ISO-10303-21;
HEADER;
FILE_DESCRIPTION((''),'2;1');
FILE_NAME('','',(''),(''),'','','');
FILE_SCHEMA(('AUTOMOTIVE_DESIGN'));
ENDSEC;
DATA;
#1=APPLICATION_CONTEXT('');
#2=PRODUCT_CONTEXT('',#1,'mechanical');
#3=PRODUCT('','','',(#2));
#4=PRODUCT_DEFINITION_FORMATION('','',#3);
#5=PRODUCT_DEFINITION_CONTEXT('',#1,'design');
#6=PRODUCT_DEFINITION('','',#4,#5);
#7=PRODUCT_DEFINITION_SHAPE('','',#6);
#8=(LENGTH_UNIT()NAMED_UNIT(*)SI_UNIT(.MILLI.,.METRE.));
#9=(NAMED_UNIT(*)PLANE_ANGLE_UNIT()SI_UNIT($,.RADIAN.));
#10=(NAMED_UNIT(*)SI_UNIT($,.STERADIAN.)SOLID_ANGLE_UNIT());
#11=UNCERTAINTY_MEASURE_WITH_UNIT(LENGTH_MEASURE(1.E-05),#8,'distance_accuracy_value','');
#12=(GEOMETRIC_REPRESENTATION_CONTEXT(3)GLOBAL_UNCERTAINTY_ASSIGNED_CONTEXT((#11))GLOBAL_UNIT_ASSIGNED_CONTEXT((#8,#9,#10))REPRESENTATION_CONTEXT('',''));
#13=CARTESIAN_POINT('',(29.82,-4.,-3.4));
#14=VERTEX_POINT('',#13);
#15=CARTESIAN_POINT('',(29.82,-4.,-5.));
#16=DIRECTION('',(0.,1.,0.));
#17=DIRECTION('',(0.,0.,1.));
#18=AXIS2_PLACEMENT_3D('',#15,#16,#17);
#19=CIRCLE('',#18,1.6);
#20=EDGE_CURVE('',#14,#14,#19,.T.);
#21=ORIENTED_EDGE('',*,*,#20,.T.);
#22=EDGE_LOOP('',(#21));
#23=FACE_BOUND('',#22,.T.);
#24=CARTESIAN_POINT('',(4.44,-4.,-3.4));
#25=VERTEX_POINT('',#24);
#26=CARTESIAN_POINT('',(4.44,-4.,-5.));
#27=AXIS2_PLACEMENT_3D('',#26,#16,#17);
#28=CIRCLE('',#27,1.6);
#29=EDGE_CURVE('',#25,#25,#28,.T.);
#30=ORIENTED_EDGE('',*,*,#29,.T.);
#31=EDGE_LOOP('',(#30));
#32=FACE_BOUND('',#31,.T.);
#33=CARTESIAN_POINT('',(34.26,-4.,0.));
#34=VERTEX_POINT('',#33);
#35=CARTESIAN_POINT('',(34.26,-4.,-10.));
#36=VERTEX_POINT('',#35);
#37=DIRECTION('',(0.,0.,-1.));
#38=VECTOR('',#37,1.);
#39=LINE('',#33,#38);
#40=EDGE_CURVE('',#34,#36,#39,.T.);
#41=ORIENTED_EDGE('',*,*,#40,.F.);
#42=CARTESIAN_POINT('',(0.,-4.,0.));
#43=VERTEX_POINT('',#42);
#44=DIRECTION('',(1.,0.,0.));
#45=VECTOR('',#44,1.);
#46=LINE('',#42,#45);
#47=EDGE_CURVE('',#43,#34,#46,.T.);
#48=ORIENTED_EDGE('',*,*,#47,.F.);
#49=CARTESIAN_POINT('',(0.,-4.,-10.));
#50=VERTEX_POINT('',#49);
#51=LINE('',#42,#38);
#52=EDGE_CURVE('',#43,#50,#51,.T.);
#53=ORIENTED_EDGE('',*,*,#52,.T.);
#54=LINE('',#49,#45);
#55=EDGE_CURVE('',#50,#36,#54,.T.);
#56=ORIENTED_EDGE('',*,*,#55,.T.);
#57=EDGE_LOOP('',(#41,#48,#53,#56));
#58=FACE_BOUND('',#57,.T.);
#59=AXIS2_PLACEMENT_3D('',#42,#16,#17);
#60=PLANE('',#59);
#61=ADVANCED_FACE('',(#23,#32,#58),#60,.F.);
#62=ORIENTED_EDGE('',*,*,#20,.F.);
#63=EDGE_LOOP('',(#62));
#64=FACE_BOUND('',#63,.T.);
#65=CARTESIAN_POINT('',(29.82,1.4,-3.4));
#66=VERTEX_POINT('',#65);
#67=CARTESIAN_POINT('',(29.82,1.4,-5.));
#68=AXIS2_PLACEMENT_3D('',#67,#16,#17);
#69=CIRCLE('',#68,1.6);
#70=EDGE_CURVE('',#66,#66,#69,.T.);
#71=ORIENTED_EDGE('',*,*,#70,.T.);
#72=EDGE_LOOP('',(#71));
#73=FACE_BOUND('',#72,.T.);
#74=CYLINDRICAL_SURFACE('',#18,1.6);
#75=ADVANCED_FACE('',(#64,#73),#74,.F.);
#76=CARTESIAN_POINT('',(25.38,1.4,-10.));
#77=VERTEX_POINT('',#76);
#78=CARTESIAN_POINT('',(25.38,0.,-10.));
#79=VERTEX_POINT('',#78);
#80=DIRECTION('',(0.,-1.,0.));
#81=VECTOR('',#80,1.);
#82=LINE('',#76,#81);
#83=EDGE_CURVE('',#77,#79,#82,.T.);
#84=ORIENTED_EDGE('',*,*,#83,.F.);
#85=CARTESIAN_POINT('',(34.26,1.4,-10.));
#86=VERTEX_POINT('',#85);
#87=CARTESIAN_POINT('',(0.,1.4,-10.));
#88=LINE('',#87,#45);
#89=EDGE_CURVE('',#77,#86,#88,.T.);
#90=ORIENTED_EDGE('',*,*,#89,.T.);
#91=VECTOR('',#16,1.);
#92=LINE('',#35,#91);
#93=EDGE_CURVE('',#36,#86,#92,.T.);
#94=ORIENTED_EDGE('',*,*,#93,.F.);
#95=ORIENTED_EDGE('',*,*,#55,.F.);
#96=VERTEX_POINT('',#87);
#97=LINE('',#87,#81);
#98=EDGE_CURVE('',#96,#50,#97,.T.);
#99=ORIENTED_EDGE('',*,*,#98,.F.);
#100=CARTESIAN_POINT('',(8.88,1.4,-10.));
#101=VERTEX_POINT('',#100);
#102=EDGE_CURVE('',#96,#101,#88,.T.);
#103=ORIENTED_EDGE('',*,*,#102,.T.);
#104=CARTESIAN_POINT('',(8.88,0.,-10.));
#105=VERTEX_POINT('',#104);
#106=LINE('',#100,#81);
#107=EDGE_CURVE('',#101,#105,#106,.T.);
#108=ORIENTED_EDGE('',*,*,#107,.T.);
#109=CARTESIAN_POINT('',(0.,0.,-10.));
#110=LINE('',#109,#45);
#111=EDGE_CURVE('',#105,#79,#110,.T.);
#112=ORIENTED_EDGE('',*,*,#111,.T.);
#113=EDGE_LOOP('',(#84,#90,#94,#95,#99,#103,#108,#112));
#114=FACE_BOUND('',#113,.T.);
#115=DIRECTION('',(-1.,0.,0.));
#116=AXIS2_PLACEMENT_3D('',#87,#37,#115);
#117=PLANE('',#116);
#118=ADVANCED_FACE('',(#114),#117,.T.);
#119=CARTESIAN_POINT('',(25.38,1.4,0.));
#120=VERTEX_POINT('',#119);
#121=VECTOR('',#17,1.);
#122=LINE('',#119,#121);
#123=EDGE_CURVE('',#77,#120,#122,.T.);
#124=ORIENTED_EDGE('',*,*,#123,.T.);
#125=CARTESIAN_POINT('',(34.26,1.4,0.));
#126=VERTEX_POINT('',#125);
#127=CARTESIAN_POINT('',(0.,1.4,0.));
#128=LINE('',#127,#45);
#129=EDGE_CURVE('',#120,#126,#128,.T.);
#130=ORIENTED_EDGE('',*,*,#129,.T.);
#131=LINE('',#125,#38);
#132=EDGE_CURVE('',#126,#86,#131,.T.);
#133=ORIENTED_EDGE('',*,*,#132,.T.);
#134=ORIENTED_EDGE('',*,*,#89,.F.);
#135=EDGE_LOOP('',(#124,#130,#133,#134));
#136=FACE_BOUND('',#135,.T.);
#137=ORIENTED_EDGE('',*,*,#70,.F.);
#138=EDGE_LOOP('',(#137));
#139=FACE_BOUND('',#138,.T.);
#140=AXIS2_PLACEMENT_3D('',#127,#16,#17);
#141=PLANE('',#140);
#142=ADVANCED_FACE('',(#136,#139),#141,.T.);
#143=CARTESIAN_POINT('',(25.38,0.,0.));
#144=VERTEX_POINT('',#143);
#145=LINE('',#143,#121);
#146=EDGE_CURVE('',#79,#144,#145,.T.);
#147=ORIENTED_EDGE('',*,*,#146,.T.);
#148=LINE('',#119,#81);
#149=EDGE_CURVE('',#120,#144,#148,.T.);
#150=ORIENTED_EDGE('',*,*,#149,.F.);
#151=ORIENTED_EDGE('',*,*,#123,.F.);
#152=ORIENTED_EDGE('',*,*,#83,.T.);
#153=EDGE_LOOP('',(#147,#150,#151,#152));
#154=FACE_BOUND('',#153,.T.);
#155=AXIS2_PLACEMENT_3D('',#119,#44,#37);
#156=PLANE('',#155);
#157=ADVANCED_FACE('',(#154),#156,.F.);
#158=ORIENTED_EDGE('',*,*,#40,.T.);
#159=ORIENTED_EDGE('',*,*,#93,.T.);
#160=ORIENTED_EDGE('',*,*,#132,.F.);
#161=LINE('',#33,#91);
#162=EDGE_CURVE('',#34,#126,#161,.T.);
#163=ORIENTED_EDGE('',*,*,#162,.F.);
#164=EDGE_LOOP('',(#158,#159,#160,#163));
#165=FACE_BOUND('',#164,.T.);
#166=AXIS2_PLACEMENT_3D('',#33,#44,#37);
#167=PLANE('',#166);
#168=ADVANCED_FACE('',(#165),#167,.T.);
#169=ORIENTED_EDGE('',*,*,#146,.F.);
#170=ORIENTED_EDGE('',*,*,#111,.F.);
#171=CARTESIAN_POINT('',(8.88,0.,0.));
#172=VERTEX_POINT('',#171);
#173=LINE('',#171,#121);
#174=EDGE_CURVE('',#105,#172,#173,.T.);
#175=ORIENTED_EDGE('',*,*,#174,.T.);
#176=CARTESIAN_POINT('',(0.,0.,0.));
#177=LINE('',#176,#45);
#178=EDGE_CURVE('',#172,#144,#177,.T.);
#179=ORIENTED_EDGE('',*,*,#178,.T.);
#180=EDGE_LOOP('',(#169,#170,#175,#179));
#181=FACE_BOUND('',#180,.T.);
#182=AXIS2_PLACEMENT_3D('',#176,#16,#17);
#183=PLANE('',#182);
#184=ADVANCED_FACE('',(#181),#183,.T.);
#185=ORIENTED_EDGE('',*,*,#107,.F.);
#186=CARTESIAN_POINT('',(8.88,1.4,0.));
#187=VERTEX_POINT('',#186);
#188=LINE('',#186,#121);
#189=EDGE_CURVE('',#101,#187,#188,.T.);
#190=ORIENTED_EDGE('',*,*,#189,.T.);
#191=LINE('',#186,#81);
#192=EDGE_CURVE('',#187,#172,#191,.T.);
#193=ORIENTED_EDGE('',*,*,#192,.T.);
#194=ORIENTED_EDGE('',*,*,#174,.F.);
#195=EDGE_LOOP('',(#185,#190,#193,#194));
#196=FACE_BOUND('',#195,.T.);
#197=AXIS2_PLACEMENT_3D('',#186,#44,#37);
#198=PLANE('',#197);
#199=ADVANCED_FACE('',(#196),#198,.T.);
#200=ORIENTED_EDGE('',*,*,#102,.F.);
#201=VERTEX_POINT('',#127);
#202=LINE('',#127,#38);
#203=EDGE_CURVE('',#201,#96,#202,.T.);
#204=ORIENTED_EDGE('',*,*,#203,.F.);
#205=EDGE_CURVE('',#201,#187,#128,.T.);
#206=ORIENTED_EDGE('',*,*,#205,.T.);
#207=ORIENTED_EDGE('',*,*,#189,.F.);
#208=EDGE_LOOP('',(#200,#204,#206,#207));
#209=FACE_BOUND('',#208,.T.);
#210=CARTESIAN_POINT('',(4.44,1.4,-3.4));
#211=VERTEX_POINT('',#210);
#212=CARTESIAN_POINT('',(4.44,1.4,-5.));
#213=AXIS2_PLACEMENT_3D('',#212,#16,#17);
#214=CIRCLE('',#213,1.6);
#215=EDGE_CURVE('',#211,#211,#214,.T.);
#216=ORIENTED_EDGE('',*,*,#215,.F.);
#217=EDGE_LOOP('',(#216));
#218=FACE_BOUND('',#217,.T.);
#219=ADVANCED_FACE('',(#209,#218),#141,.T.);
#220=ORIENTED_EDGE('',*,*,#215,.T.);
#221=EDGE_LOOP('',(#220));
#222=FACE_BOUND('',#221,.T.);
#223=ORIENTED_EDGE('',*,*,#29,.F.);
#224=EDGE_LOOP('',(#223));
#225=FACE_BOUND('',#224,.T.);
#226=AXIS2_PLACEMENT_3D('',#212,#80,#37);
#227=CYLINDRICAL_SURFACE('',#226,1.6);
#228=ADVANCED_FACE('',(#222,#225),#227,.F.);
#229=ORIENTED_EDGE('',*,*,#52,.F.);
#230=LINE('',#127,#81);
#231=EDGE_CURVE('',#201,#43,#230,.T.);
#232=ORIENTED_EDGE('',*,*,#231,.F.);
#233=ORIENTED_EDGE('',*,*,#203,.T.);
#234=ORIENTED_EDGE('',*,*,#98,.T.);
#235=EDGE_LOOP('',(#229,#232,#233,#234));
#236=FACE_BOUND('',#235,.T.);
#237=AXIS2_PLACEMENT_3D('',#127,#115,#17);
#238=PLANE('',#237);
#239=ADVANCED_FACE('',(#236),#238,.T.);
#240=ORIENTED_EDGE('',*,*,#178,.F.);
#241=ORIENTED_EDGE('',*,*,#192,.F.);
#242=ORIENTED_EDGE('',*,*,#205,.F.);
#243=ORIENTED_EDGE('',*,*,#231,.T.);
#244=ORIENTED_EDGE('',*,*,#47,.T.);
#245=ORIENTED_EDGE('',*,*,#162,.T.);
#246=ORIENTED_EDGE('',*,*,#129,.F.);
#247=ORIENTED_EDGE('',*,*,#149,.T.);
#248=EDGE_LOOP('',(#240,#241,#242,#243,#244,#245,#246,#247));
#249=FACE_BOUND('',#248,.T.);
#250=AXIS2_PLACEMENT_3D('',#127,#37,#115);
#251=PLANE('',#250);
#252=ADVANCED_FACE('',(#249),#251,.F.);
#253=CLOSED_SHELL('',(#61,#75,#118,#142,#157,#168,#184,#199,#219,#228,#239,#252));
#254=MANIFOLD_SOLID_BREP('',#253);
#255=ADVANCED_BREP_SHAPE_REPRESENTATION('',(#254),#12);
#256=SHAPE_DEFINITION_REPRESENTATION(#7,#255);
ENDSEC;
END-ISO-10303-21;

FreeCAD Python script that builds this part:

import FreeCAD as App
import Part
import Sketcher

V = App.Vector
Q = App.Units.Quantity


def add_polygon(sketch, points):
    """Adds a closed chain of lines whose ends are joined by coincident constraints."""
    first, n = sketch.GeometryCount, len(points)
    for a, b in zip(points, points[1:] + points[:1]):
        sketch.addGeometry(Part.LineSegment(App.Vector(*a, 0), App.Vector(*b, 0)), False)
    for i in range(n):
        sketch.addConstraint(Sketcher.Constraint("Coincident", first + i, 2, first + (i + 1) % n, 1))

doc = App.newDocument("Part")
params = doc.addObject("Spreadsheet::Sheet", "Params")
for row, (alias, value) in enumerate([
    ("sketch1_diameter", "3.2 mm"),
    ("sketch1_height", "10 mm"),
    ("sketch1_width", "8.88 mm"),
    ("pad1_length", "1.4 mm"),
    ("sketch2_diameter", "3.2 mm"),
    ("sketch2_height", "10 mm"),
    ("sketch2_width", "8.88 mm"),
    ("pad2_length", "1.4 mm"),
    ("sketch3_diameter", "3.2 mm"),
    ("sketch3_height", "10 mm"),
    ("sketch3_width", "34.26 mm"),
    ("pad3_length", "4 mm"),
], start=1):
    params.set(f"A{row}", alias)
    params.set(f"B{row}", "=" + value)
    params.setAlias(f"B{row}", alias)

body = doc.addObject("PartDesign::Body", "Body")

sketch1 = body.newObject("Sketcher::SketchObject", "Sketch")
sketch1.AttachmentSupport = (doc.getObject("XZ_Plane"), [""])
sketch1.MapMode = "FlatFace"
add_polygon(sketch1, [(0, -10), (0, 0), (8.9, 0), (8.9, -10)])
sketch1.addGeometry(Part.Circle(V(4.4, -5, 0), V(0, 0, 1), 1.6), False)
sketch1.addConstraint(Sketcher.Constraint("Vertical", 0))
sketch1.addConstraint(Sketcher.Constraint("Horizontal", 1))
sketch1.addConstraint(Sketcher.Constraint("Vertical", 2))
sketch1.addConstraint(Sketcher.Constraint("Horizontal", 3))
sketch1.addConstraint(Sketcher.Constraint("Coincident", 0, 2, -1, 1))
sketch1.addConstraint(Sketcher.Constraint("Diameter", 4, Q("3.2 mm")))
sketch1.addConstraint(Sketcher.Constraint("DistanceY", 0, 1, 0, 2, Q("10 mm")))
sketch1.addConstraint(Sketcher.Constraint("DistanceY", 4, 3, -1, 1, Q("5 mm")))
sketch1.addConstraint(Sketcher.Constraint("DistanceX", 1, 1, 1, 2, Q("8.88 mm")))
sketch1.addConstraint(Sketcher.Constraint("DistanceX", -1, 1, 4, 3, Q("4.44 mm")))
sketch1.setExpression("Constraints[9]", "Params.sketch1_diameter")
sketch1.setExpression("Constraints[10]", "Params.sketch1_height")
sketch1.setExpression("Constraints[12]", "Params.sketch1_width")
pad1 = body.newObject("PartDesign::Pad", "Pad")
pad1.Profile = sketch1
pad1.setExpression("Length", "Params.pad1_length")
pad1.Reversed = True
body2 = doc.addObject("PartDesign::Body", "Body001")

sketch2 = body2.newObject("Sketcher::SketchObject", "Sketch001")
sketch2.AttachmentSupport = (doc.getObject("XZ_Plane001"), [""])
sketch2.MapMode = "FlatFace"
add_polygon(sketch2, [(25.4, -10), (25.4, 0), (34.3, 0), (34.3, -10)])
sketch2.addGeometry(Part.Circle(V(29.8, -5, 0), V(0, 0, 1), 1.6), False)
sketch2.addConstraint(Sketcher.Constraint("Vertical", 0))
sketch2.addConstraint(Sketcher.Constraint("Horizontal", 1))
sketch2.addConstraint(Sketcher.Constraint("Vertical", 2))
sketch2.addConstraint(Sketcher.Constraint("Horizontal", 3))
sketch2.addConstraint(Sketcher.Constraint("PointOnObject", 0, 2, -1))
sketch2.addConstraint(Sketcher.Constraint("Diameter", 4, Q("3.2 mm")))
sketch2.addConstraint(Sketcher.Constraint("DistanceY", 0, 1, 0, 2, Q("10 mm")))
sketch2.addConstraint(Sketcher.Constraint("DistanceY", 4, 3, -1, 1, Q("5 mm")))
sketch2.addConstraint(Sketcher.Constraint("DistanceX", 1, 1, 1, 2, Q("8.88 mm")))
sketch2.addConstraint(Sketcher.Constraint("DistanceX", -1, 1, 4, 3, Q("29.82 mm")))
sketch2.addConstraint(Sketcher.Constraint("DistanceX", -1, 1, 0, 2, Q("25.38 mm")))
sketch2.setExpression("Constraints[9]", "Params.sketch2_diameter")
sketch2.setExpression("Constraints[10]", "Params.sketch2_height")
sketch2.setExpression("Constraints[12]", "Params.sketch2_width")
pad2 = body2.newObject("PartDesign::Pad", "Pad001")
pad2.Profile = sketch2
pad2.setExpression("Length", "Params.pad2_length")
pad2.Reversed = True
body.AllowCompound = True
doc.recompute()

boolean = body.newObject("PartDesign::Boolean", "Boolean")
boolean.Type = "Fuse"
boolean.addObjects([body2])

sketch3 = body.newObject("Sketcher::SketchObject", "Sketch002")
sketch3.AttachmentSupport = (doc.getObject("XZ_Plane"), [""])
sketch3.MapMode = "FlatFace"
sketch3.AttachmentOffset = App.Placement(V(0, 0, 4), App.Rotation())
add_polygon(sketch3, [(0, -10), (0, 0), (34.3, 0), (34.3, -10)])
sketch3.addGeometry(Part.Circle(V(4.4, -5, 0), V(0, 0, 1), 1.6), False)
sketch3.addGeometry(Part.Circle(V(29.8, -5, 0), V(0, 0, 1), 1.6), False)
sketch3.addConstraint(Sketcher.Constraint("Vertical", 0))
sketch3.addConstraint(Sketcher.Constraint("Horizontal", 1))
sketch3.addConstraint(Sketcher.Constraint("Vertical", 2))
sketch3.addConstraint(Sketcher.Constraint("Horizontal", 3))
sketch3.addConstraint(Sketcher.Constraint("Coincident", 0, 2, -1, 1))
sketch3.addConstraint(Sketcher.Constraint("Equal", 4, 5))
sketch3.addConstraint(Sketcher.Constraint("Horizontal", 4, 3, 5, 3))
sketch3.addConstraint(Sketcher.Constraint("Diameter", 4, Q("3.2 mm")))
sketch3.addConstraint(Sketcher.Constraint("DistanceY", 0, 1, 0, 2, Q("10 mm")))
sketch3.addConstraint(Sketcher.Constraint("DistanceY", 4, 3, -1, 1, Q("5 mm")))
sketch3.addConstraint(Sketcher.Constraint("DistanceX", 1, 1, 1, 2, Q("34.26 mm")))
sketch3.addConstraint(Sketcher.Constraint("DistanceX", -1, 1, 4, 3, Q("4.44 mm")))
sketch3.addConstraint(Sketcher.Constraint("DistanceX", -1, 1, 5, 3, Q("29.82 mm")))
sketch3.setExpression("Constraints[11]", "Params.sketch3_diameter")
sketch3.setExpression("Constraints[12]", "Params.sketch3_height")
sketch3.setExpression("Constraints[14]", "Params.sketch3_width")
pad3 = body.newObject("PartDesign::Pad", "Pad002")
pad3.Profile = sketch3
pad3.setExpression("Length", "Params.pad3_length")
pad3.Reversed = True

doc.recompute()
